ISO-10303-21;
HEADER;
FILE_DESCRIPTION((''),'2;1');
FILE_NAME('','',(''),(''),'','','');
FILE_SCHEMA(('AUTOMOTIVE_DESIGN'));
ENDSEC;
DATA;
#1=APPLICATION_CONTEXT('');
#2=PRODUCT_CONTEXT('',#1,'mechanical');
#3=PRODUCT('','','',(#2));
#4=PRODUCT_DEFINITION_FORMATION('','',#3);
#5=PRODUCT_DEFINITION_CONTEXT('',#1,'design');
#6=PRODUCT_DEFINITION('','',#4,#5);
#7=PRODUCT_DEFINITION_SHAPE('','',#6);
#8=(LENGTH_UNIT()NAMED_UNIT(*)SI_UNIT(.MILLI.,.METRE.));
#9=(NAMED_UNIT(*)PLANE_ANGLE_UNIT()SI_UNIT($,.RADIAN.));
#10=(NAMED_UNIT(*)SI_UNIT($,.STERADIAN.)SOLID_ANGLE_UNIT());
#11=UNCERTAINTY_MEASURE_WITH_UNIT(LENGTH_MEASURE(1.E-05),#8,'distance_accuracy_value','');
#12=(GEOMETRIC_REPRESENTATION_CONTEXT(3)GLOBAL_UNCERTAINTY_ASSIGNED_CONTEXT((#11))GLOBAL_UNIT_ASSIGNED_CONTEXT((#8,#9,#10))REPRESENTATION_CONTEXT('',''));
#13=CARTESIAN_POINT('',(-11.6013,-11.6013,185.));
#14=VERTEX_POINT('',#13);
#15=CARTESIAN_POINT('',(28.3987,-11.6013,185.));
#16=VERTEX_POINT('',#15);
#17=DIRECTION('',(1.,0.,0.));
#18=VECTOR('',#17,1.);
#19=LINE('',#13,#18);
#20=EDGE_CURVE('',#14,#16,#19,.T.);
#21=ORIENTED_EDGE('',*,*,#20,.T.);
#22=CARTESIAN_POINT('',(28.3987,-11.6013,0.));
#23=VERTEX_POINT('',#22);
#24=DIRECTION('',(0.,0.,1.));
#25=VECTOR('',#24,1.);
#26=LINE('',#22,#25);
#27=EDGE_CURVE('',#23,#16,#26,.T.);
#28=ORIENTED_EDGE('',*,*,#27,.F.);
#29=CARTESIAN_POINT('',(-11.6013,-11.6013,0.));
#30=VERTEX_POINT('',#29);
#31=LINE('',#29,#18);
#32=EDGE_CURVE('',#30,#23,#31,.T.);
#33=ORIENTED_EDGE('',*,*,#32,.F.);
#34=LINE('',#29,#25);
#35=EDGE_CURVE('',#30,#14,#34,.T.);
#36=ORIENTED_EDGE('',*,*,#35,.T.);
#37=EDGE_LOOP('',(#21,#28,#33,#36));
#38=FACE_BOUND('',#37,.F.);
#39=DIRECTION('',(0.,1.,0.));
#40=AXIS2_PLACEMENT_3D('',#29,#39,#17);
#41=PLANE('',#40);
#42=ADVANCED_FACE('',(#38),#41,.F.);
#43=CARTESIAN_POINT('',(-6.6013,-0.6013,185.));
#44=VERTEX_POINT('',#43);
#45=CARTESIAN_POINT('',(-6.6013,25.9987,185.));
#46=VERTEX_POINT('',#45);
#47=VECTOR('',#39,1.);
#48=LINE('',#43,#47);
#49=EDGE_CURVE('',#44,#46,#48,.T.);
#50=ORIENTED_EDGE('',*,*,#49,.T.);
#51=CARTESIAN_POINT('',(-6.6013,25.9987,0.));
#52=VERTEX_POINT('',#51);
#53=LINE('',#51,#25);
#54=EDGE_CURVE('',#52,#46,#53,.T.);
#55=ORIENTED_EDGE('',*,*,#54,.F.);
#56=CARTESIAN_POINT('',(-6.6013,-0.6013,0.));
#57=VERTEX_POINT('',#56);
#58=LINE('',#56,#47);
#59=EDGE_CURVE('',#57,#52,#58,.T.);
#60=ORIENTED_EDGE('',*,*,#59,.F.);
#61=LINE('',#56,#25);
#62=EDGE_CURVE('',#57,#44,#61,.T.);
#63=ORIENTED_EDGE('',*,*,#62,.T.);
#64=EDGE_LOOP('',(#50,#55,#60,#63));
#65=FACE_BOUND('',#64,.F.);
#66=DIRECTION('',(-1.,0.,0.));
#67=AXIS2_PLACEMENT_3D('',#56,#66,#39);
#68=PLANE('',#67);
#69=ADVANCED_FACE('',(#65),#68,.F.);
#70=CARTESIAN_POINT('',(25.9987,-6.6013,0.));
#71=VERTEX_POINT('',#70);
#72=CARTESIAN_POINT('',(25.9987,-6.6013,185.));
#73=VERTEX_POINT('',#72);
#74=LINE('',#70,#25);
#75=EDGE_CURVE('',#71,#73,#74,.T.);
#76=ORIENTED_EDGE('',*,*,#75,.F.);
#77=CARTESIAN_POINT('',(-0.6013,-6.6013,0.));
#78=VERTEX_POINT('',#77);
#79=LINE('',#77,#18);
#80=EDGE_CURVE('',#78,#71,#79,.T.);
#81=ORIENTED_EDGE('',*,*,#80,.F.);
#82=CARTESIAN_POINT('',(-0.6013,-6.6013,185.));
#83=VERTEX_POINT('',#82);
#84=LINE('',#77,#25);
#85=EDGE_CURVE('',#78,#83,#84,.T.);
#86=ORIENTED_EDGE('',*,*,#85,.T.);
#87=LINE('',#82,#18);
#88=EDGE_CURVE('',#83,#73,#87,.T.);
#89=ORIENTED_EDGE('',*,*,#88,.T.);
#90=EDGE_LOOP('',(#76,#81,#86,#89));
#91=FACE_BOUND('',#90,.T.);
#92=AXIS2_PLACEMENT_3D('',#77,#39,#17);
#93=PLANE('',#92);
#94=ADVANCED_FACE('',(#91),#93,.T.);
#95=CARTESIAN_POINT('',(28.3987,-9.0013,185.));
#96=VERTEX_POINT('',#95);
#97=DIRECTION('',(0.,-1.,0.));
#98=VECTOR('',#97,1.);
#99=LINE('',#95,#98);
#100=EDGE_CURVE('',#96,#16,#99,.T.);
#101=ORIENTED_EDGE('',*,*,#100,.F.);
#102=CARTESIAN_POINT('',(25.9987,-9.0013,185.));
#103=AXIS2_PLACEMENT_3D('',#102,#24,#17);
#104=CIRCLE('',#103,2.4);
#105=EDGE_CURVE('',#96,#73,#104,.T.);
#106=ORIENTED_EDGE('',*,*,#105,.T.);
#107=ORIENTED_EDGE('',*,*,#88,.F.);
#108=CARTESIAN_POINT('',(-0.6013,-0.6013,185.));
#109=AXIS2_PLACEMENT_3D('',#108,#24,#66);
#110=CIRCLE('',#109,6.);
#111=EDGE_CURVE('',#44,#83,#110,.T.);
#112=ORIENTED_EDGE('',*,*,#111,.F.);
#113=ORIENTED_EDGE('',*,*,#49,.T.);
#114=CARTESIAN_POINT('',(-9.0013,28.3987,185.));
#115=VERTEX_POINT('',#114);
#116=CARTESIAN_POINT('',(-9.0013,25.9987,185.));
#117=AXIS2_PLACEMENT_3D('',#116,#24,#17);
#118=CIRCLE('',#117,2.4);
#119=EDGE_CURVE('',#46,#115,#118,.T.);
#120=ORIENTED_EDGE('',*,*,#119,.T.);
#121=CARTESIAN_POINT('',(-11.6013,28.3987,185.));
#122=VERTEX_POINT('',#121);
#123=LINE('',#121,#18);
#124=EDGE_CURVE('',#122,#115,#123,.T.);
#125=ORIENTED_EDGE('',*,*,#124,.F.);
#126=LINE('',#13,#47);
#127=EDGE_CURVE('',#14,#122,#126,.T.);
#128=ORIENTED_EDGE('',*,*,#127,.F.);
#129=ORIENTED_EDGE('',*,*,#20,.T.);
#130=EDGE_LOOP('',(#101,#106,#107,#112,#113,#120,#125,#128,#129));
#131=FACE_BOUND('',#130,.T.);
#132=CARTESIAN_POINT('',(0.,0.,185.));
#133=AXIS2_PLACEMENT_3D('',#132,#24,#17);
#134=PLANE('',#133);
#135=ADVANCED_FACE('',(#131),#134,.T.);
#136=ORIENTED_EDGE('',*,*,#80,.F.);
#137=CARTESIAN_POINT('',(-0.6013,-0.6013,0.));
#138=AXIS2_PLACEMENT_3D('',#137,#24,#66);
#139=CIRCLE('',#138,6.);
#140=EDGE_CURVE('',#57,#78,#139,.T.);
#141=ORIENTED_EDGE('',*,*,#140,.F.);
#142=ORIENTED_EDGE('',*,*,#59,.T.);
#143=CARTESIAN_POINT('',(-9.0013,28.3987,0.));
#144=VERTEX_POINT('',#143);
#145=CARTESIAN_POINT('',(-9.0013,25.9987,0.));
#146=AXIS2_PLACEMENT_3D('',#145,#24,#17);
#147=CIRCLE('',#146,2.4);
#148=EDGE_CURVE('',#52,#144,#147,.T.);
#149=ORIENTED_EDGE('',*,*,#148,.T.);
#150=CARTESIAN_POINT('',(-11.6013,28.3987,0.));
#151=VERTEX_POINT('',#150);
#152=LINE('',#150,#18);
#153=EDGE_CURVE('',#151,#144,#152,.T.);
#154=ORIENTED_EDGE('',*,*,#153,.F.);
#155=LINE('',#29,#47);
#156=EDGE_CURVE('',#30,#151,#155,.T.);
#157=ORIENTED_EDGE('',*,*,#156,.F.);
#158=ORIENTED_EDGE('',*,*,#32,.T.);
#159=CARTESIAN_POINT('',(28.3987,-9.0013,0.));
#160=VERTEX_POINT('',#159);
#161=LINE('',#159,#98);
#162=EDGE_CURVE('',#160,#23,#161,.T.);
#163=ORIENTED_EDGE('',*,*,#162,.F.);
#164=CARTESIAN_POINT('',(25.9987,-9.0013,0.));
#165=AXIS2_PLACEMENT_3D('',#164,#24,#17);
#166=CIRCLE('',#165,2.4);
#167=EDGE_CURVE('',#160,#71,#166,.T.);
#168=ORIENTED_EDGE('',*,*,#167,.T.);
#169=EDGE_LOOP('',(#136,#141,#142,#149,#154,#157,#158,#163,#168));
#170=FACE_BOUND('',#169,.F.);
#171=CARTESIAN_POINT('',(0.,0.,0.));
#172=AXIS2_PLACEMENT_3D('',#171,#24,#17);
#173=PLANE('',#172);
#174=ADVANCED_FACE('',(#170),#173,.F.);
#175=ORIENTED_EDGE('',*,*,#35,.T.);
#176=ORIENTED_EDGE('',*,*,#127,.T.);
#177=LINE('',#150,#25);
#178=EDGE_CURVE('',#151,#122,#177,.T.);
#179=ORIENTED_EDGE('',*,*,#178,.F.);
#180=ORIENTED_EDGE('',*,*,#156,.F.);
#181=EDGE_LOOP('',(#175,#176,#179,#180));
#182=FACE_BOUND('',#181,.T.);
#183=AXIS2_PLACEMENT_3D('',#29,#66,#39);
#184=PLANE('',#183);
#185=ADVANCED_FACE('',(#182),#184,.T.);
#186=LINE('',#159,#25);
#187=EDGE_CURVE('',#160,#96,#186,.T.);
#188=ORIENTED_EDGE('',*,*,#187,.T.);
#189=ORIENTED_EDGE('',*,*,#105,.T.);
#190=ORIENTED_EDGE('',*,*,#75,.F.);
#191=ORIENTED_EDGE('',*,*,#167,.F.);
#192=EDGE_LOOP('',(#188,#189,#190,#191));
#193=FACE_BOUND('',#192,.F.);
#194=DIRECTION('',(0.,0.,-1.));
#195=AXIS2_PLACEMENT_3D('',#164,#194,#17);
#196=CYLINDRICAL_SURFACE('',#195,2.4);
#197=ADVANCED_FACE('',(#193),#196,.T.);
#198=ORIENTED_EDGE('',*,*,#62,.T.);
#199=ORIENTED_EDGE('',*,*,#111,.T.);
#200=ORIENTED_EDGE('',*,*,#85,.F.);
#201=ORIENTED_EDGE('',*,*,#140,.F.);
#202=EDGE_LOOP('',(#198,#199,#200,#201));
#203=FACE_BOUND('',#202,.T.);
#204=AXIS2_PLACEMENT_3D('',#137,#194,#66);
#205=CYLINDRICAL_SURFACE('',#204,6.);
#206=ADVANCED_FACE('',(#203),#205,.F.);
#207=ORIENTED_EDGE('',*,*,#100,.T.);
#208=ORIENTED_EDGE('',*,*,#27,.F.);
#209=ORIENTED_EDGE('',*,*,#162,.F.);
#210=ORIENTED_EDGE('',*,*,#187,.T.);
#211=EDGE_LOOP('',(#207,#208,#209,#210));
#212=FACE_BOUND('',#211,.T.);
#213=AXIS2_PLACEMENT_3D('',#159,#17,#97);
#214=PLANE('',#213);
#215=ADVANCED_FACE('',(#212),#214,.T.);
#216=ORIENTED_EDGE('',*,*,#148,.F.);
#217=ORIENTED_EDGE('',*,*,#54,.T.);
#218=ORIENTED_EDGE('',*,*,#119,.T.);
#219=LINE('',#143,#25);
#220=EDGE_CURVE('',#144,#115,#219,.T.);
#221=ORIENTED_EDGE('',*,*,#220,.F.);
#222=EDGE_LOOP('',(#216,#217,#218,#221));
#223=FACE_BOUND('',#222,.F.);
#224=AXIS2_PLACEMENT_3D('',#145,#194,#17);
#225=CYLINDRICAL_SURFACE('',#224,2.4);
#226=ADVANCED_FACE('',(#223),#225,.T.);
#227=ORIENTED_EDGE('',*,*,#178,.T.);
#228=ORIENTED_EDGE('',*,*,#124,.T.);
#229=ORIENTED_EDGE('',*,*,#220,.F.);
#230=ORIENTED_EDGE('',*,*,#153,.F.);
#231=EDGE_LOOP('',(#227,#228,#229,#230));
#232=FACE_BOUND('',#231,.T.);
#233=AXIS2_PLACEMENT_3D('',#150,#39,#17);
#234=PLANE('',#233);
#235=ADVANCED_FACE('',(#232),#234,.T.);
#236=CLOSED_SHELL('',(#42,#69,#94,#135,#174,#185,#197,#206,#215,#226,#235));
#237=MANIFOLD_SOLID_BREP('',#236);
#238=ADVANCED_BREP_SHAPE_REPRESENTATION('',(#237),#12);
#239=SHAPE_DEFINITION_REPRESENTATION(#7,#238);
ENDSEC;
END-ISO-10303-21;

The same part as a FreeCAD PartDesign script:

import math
import FreeCAD as App
import Part
import Sketcher
Q = App.Units.Quantity

doc = App.newDocument("Part")
body = doc.addObject("PartDesign::Body", "Body")

# Sketch on XY plane
sketch1 = body.newObject("Sketcher::SketchObject", "Sketch")
sketch1.AttachmentSupport = (doc.getObject("XY_Plane"), [""])
sketch1.MapMode = "FlatFace"
sketch1.addGeometry([
    Part.ArcOfCircle(Part.Circle(App.Vector(-0.6013, -0.6013, 0), App.Vector(0, 0, 1), 6), math.radians(180), math.radians(270)),  # 0
    Part.LineSegment(App.Vector(-6.6013, -0.6013, 0), App.Vector(-6.6013, 25.9987, 0)),  # 1
    Part.ArcOfCircle(Part.Circle(App.Vector(-9.0013, 25.9987, 0), App.Vector(0, 0, 1), 2.4), math.radians(0), math.radians(90)),  # 2
    Part.LineSegment(App.Vector(-9.0013, 28.3987, 0), App.Vector(-11.6013, 28.3987, 0)),  # 3
    Part.LineSegment(App.Vector(-11.6013, 28.3987, 0), App.Vector(-11.6013, -11.6013, 0)),  # 4
    Part.LineSegment(App.Vector(-11.6013, -11.6013, 0), App.Vector(28.3987, -11.6013, 0)),  # 5
    Part.LineSegment(App.Vector(28.3987, -11.6013, 0), App.Vector(28.3987, -9.0013, 0)),  # 6
    Part.ArcOfCircle(Part.Circle(App.Vector(25.9987, -9.0013, 0), App.Vector(0, 0, 1), 2.4), math.radians(0), math.radians(90)),  # 7
    Part.LineSegment(App.Vector(25.9987, -6.6013, 0), App.Vector(-0.6013, -6.6013, 0)),  # 8
], False)
sketch1.addConstraint([
    Sketcher.Constraint("Tangent", 0, 1, 1, 1),
    Sketcher.Constraint("Tangent", 1, 2, 2, 1),
    Sketcher.Constraint("Tangent", 2, 2, 3, 1),
    Sketcher.Constraint("Coincident", 3, 2, 4, 1),
    Sketcher.Constraint("Coincident", 4, 2, 5, 1),
    Sketcher.Constraint("Coincident", 5, 2, 6, 1),
    Sketcher.Constraint("Tangent", 6, 2, 7, 1),
    Sketcher.Constraint("Tangent", 7, 2, 8, 1),
    Sketcher.Constraint("Tangent", 8, 2, 0, 2),
    Sketcher.Constraint("Vertical", 1),
    Sketcher.Constraint("Horizontal", 3),
    Sketcher.Constraint("Vertical", 4),
    Sketcher.Constraint("Horizontal", 5),
    Sketcher.Constraint("Vertical", 6),
    Sketcher.Constraint("Horizontal", 8),
    Sketcher.Constraint("Equal", 2, 7),
    Sketcher.Constraint("Equal", 8, 1),
    Sketcher.Constraint("Equal", 5, 4),
    Sketcher.Constraint("Radius", 0, Q("6 mm")),
    Sketcher.Constraint("Radius", 2, Q("2.4 mm")),
    Sketcher.Constraint("DistanceX", 5, 1, 5, 2, Q("40 mm")),
    Sketcher.Constraint("DistanceX", 3, 2, 1, 2, Q("5 mm")),
    Sketcher.Constraint("DistanceX", 3, 2, -1, 1, Q("11.6013 mm")),
    Sketcher.Constraint("DistanceY", 4, 2, -1, 1, Q("11.6013 mm")),
])
pad1 = body.newObject("PartDesign::Pad", "Pad")
pad1.Profile = sketch1
pad1.Length = 185

doc.recompute()
